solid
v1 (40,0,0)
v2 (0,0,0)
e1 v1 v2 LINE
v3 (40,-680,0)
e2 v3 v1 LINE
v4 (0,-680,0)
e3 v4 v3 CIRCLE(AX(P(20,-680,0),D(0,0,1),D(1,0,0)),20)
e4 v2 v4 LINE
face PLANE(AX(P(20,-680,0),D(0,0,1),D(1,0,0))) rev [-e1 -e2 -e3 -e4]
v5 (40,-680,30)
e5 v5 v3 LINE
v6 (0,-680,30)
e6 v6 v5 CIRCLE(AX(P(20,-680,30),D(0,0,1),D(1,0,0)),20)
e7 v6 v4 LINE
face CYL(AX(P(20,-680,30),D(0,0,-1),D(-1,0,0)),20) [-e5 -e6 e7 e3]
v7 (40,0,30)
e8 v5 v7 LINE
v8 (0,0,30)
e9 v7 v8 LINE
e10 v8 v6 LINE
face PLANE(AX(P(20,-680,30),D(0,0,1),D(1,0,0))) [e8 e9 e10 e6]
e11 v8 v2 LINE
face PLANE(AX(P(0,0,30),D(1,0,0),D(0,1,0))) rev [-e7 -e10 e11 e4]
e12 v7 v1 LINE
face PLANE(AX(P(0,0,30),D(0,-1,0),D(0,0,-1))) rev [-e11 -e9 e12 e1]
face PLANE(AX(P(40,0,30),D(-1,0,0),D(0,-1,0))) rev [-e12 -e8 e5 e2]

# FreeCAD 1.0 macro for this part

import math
import FreeCAD as App
import Part
import Sketcher

V = App.Vector
Q = App.Units.Quantity

doc = App.newDocument("Part")
body = doc.addObject("PartDesign::Body", "Body")

# Sketch on XY plane
sketch1 = doc.addObject("Sketcher::SketchObject", "Sketch")
body.addObject(sketch1)
sketch1.AttachmentSupport = (doc.XY_Plane, [""])
sketch1.MapMode = "FlatFace"
sketch1.addGeometry([
    Part.LineSegment(V(40, 0, 0), V(0, 0, 0)),
    Part.LineSegment(V(0, 0, 0), V(0, -680, 0)),
    Part.ArcOfCircle(Part.Circle(V(20, -680, 0), V(0, 0, 1), 20), math.radians(180), math.radians(360)),
    Part.LineSegment(V(40, -680, 0), V(40, 0, 0)),
], False)
sketch1.addConstraint([
    Sketcher.Constraint("Coincident", 0, 2, 1, 1),
    Sketcher.Constraint("Tangent", 1, 2, 2, 1),
    Sketcher.Constraint("Tangent", 2, 2, 3, 1),
    Sketcher.Constraint("Coincident", 3, 2, 0, 1),
    Sketcher.Constraint("Horizontal", 0),
    Sketcher.Constraint("Vertical", 1),
    Sketcher.Constraint("Vertical", 3),
    Sketcher.Constraint("Coincident", 0, 2, -1, 1),
    Sketcher.Constraint("Radius", 2, Q("20 mm")),
    Sketcher.Constraint("DistanceY", 1, 2, 1, 1, Q("680 mm")),
])
pad1 = doc.addObject("PartDesign::Pad", "Pad")
body.addObject(pad1)
pad1.Profile = sketch1
pad1.Length = 30

doc.recompute()
